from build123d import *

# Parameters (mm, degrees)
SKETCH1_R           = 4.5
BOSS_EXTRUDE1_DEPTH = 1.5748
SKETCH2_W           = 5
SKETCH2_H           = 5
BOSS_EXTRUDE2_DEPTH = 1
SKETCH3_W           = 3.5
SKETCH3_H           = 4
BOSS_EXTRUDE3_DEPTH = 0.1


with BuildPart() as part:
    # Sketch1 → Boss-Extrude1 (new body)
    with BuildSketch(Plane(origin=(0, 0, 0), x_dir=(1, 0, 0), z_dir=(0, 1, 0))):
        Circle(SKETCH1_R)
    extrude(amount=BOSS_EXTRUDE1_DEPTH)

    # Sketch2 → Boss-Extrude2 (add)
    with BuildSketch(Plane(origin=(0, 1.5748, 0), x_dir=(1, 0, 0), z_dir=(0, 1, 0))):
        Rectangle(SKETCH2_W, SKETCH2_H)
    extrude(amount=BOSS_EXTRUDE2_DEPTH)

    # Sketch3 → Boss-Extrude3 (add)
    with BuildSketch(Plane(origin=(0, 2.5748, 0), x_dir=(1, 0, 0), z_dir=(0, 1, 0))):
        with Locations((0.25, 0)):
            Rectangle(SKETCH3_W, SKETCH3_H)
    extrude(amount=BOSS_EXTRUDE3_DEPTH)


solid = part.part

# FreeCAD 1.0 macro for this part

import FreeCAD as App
import Part
import Sketcher

V = App.Vector


def add_polygon(sketch, points):
    """Adds a closed chain of lines whose ends are joined by coincident constraints."""
    first, n = sketch.GeometryCount, len(points)
    for a, b in zip(points, points[1:] + points[:1]):
        sketch.addGeometry(Part.LineSegment(App.Vector(*a, 0), App.Vector(*b, 0)), False)
    for i in range(n):
        sketch.addConstraint(Sketcher.Constraint("Coincident", first + i, 2, first + (i + 1) % n, 1))

doc = App.newDocument("Part")
params = doc.addObject("Spreadsheet::Sheet", "Params")
for row, (alias, value) in enumerate([
    ("sketch1_diameter", "9 mm"),
    ("pad1_length", "1.5748 mm"),
    ("sketch2_width", "5 mm"),
    ("pad2_length", "1 mm"),
    ("sketch3_height", "4 mm"),
    ("sketch3_width", "3.5 mm"),
    ("pad3_length", "0.1 mm"),
], start=1):
    params.set(f"A{row}", alias)
    params.set(f"B{row}", "=" + value)
    params.setAlias(f"B{row}", alias)

body = doc.addObject("PartDesign::Body", "Body")

# Sketch on XZ plane
sketch1 = doc.addObject("Sketcher::SketchObject", "Sketch")
body.addObject(sketch1)
sketch1.AttachmentSupport = (doc.XZ_Plane, [""])
sketch1.MapMode = "FlatFace"
sketch1.addGeometry(Part.Circle(V(0, 0, 0), V(0, 0, 1), 4.5), False)
sketch1.addConstraint([
    Sketcher.Constraint("Coincident", 0, 3, -1, 1),
    Sketcher.Constraint("Diameter", 0, 9.0),
])
sketch1.setExpression("Constraints[1]", "Params.sketch1_diameter")
pad1 = doc.addObject("PartDesign::Pad", "Pad")
body.addObject(pad1)
pad1.Profile = sketch1
pad1.setExpression("Length", "Params.pad1_length")
pad1.Reversed = True

# Sketch on XZ plane
sketch2 = doc.addObject("Sketcher::SketchObject", "Sketch001")
body.addObject(sketch2)
sketch2.AttachmentSupport = (doc.XZ_Plane, [""])
sketch2.MapMode = "FlatFace"
sketch2.AttachmentOffset = App.Placement(V(0, 0, -1.5748), App.Rotation())
add_polygon(sketch2, [(-2.5, -2.5), (-2.5, 2.5), (2.5, 2.5), (2.5, -2.5)])  # lines 0-3
sketch2.addConstraint([
    Sketcher.Constraint("Vertical", 0),
    Sketcher.Constraint("Horizontal", 1),
    Sketcher.Constraint("Vertical", 2),
    Sketcher.Constraint("Horizontal", 3),
    Sketcher.Constraint("Symmetric", 0, 2, 2, 2, -1, 1),
    Sketcher.Constraint("Equal", 3, 0),
    Sketcher.Constraint("DistanceX", 1, 1, 1, 2, 5.0),
])
sketch2.setExpression("Constraints[10]", "Params.sketch2_width")
pad2 = doc.addObject("PartDesign::Pad", "Pad001")
body.addObject(pad2)
pad2.Profile = sketch2
pad2.setExpression("Length", "Params.pad2_length")
pad2.Reversed = True

# Sketch on XZ plane
sketch3 = doc.addObject("Sketcher::SketchObject", "Sketch002")
body.addObject(sketch3)
sketch3.AttachmentSupport = (doc.XZ_Plane, [""])
sketch3.MapMode = "FlatFace"
sketch3.AttachmentOffset = App.Placement(V(0, 0, -2.5748), App.Rotation())
add_polygon(sketch3, [(-1.5, -2), (-1.5, 2), (2, 2), (2, -2)])  # lines 0-3
sketch3.addConstraint([
    Sketcher.Constraint("Vertical", 0),
    Sketcher.Constraint("Horizontal", 1),
    Sketcher.Constraint("Vertical", 2),
    Sketcher.Constraint("Horizontal", 3),
    Sketcher.Constraint("DistanceY", 0, 1, 0, 2, 4.0),
    Sketcher.Constraint("DistanceX", 1, 1, 1, 2, 3.5),
    Sketcher.Constraint("DistanceY", -1, 1, 0, 2, 2.0),
    Sketcher.Constraint("DistanceX", -1, 1, 1, 2, 2.0),
])
sketch3.setExpression("Constraints[8]", "Params.sketch3_height")
sketch3.setExpression("Constraints[9]", "Params.sketch3_width")
pad3 = doc.addObject("PartDesign::Pad", "Pad002")
body.addObject(pad3)
pad3.Profile = sketch3
pad3.setExpression("Length", "Params.pad3_length")
pad3.Reversed = True

doc.recompute()
